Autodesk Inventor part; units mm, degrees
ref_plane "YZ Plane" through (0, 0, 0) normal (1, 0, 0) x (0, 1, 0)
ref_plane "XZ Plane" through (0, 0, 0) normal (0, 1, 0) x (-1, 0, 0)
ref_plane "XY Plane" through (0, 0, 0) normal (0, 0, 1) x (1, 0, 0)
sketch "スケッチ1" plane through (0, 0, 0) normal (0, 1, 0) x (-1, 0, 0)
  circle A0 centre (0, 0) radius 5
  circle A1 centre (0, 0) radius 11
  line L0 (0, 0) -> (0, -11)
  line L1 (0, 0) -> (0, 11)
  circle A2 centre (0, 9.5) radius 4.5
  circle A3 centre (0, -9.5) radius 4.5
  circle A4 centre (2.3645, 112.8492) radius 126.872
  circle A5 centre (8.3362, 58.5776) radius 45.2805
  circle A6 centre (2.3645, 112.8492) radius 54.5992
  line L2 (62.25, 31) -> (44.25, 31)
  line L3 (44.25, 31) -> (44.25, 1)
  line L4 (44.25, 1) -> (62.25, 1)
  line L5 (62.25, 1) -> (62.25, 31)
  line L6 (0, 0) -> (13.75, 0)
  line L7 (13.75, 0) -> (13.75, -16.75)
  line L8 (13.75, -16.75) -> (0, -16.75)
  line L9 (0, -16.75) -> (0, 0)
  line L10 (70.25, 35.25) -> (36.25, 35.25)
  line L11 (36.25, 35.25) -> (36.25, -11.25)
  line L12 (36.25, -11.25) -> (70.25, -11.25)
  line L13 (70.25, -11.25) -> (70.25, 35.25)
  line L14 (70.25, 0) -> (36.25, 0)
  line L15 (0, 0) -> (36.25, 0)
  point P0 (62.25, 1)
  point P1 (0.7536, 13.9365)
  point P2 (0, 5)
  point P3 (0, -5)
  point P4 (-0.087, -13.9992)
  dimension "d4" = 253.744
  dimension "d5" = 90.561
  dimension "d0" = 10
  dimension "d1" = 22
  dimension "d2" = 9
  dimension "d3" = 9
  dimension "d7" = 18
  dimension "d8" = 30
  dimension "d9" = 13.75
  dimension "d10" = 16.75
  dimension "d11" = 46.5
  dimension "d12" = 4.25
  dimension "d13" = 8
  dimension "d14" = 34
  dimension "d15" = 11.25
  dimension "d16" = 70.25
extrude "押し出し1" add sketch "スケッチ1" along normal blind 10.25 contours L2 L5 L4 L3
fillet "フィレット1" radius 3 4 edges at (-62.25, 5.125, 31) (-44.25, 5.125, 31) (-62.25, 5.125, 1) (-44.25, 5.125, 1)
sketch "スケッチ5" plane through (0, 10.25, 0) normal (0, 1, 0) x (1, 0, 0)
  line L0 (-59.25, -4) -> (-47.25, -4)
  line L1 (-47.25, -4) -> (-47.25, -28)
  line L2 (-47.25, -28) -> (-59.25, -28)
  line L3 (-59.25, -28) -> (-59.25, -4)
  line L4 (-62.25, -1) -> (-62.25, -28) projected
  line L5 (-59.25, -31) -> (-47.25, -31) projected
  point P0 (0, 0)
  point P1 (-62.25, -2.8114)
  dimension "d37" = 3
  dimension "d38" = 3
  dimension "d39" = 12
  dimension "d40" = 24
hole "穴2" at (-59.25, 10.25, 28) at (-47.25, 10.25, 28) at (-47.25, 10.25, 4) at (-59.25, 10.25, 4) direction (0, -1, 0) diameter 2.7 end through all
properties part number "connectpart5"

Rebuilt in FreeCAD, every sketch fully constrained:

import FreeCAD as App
import Part
import Sketcher


def edges_at(feature, points):
    """Names of the edges that pass closest to the given points."""
    edges = feature.Shape.Edges
    near = lambda p: min(range(len(edges)), key=lambda i: edges[i].distToShape(Part.Vertex(*p))[0])
    return sorted({f"Edge{near(p) + 1}" for p in points})

doc = App.newDocument("Part")
body = doc.addObject("PartDesign::Body", "Body")

# Sketch on XZ plane
sketch1 = body.newObject("Sketcher::SketchObject", "Sketch")
sketch1.AttachmentSupport = (doc.getObject("XZ_Plane"), [""])
sketch1.MapMode = "FlatFace"
sketch1.addGeometry(Part.LineSegment(App.Vector(-62, 31, 0), App.Vector(-44, 31, 0)), False)
sketch1.addGeometry(Part.LineSegment(App.Vector(-44, 31, 0), App.Vector(-44, 1, 0)), False)
sketch1.addGeometry(Part.LineSegment(App.Vector(-44, 1, 0), App.Vector(-62, 1, 0)), False)
sketch1.addGeometry(Part.LineSegment(App.Vector(-62, 1, 0), App.Vector(-62, 31, 0)), False)
sketch1.addConstraint(Sketcher.Constraint("Coincident", 0, 2, 1, 1))
sketch1.addConstraint(Sketcher.Constraint("Coincident", 1, 2, 2, 1))
sketch1.addConstraint(Sketcher.Constraint("Coincident", 2, 2, 3, 1))
sketch1.addConstraint(Sketcher.Constraint("Coincident", 3, 2, 0, 1))
sketch1.addConstraint(Sketcher.Constraint("Horizontal", 0))
sketch1.addConstraint(Sketcher.Constraint("Vertical", 1))
sketch1.addConstraint(Sketcher.Constraint("Horizontal", 2))
sketch1.addConstraint(Sketcher.Constraint("Vertical", 3))
sketch1.addConstraint(Sketcher.Constraint("DistanceX", 0, 1, 0, 2, 18.0))
sketch1.addConstraint(Sketcher.Constraint("DistanceY", 1, 2, 1, 1, 30.0))
sketch1.addConstraint(Sketcher.Constraint("DistanceY", -1, 1, 0, 2, 31.0))
sketch1.addConstraint(Sketcher.Constraint("DistanceX", 0, 2, -1, 1, 44.25))
pad1 = body.newObject("PartDesign::Pad", "Pad")
pad1.Profile = sketch1
pad1.Length = 10.25
pad1.Reversed = True
doc.recompute()

fillet = body.newObject("PartDesign::Fillet", "Fillet")
fillet.Base = (pad1, edges_at(pad1, [
    (-62.25, 5.125, 31),
    (-44.25, 5.125, 31),
    (-62.25, 5.125, 1),
    (-44.25, 5.125, 1),
]))
fillet.Radius = 3

# Sketch on XZ plane
sketch2 = body.newObject("Sketcher::SketchObject", "Sketch001")
sketch2.AttachmentSupport = (doc.getObject("XZ_Plane"), [""])
sketch2.MapMode = "FlatFace"
sketch2.AttachmentOffset = App.Placement(App.Vector(0, 0, -10.25), App.Rotation())
sketch2.addGeometry(Part.Circle(App.Vector(-59.2, 28, 0), App.Vector(0, 0, 1), 1.4), False)
sketch2.addGeometry(Part.Circle(App.Vector(-47.2, 28, 0), App.Vector(0, 0, 1), 1.4), False)
sketch2.addGeometry(Part.Circle(App.Vector(-47.2, 4, 0), App.Vector(0, 0, 1), 1.4), False)
sketch2.addGeometry(Part.Circle(App.Vector(-59.2, 4, 0), App.Vector(0, 0, 1), 1.4), False)
sketch2.addConstraint(Sketcher.Constraint("Equal", 0, 1))
sketch2.addConstraint(Sketcher.Constraint("Equal", 1, 2))
sketch2.addConstraint(Sketcher.Constraint("Equal", 2, 3))
sketch2.addConstraint(Sketcher.Constraint("Horizontal", 0, 3, 1, 3))
sketch2.addConstraint(Sketcher.Constraint("Horizontal", 2, 3, 3, 3))
sketch2.addConstraint(Sketcher.Constraint("Vertical", 1, 3, 2, 3))
sketch2.addConstraint(Sketcher.Constraint("Vertical", 0, 3, 3, 3))
sketch2.addConstraint(Sketcher.Constraint("Diameter", 0, 2.7))
sketch2.addConstraint(Sketcher.Constraint("DistanceY", -1, 1, 0, 3, 28.0))
sketch2.addConstraint(Sketcher.Constraint("DistanceY", -1, 1, 2, 3, 4.0))
sketch2.addConstraint(Sketcher.Constraint("DistanceX", 0, 3, 1, 3, 12.0))
sketch2.addConstraint(Sketcher.Constraint("DistanceX", 0, 3, -1, 1, 59.25))
doc.recompute()
hole = body.newObject("PartDesign::Hole", "Hole")
hole.Profile = sketch2
hole.ThreadType = "None"
hole.Diameter = 2.7
hole.DepthType = "ThroughAll"
hole.Reversed = True

doc.recompute()
